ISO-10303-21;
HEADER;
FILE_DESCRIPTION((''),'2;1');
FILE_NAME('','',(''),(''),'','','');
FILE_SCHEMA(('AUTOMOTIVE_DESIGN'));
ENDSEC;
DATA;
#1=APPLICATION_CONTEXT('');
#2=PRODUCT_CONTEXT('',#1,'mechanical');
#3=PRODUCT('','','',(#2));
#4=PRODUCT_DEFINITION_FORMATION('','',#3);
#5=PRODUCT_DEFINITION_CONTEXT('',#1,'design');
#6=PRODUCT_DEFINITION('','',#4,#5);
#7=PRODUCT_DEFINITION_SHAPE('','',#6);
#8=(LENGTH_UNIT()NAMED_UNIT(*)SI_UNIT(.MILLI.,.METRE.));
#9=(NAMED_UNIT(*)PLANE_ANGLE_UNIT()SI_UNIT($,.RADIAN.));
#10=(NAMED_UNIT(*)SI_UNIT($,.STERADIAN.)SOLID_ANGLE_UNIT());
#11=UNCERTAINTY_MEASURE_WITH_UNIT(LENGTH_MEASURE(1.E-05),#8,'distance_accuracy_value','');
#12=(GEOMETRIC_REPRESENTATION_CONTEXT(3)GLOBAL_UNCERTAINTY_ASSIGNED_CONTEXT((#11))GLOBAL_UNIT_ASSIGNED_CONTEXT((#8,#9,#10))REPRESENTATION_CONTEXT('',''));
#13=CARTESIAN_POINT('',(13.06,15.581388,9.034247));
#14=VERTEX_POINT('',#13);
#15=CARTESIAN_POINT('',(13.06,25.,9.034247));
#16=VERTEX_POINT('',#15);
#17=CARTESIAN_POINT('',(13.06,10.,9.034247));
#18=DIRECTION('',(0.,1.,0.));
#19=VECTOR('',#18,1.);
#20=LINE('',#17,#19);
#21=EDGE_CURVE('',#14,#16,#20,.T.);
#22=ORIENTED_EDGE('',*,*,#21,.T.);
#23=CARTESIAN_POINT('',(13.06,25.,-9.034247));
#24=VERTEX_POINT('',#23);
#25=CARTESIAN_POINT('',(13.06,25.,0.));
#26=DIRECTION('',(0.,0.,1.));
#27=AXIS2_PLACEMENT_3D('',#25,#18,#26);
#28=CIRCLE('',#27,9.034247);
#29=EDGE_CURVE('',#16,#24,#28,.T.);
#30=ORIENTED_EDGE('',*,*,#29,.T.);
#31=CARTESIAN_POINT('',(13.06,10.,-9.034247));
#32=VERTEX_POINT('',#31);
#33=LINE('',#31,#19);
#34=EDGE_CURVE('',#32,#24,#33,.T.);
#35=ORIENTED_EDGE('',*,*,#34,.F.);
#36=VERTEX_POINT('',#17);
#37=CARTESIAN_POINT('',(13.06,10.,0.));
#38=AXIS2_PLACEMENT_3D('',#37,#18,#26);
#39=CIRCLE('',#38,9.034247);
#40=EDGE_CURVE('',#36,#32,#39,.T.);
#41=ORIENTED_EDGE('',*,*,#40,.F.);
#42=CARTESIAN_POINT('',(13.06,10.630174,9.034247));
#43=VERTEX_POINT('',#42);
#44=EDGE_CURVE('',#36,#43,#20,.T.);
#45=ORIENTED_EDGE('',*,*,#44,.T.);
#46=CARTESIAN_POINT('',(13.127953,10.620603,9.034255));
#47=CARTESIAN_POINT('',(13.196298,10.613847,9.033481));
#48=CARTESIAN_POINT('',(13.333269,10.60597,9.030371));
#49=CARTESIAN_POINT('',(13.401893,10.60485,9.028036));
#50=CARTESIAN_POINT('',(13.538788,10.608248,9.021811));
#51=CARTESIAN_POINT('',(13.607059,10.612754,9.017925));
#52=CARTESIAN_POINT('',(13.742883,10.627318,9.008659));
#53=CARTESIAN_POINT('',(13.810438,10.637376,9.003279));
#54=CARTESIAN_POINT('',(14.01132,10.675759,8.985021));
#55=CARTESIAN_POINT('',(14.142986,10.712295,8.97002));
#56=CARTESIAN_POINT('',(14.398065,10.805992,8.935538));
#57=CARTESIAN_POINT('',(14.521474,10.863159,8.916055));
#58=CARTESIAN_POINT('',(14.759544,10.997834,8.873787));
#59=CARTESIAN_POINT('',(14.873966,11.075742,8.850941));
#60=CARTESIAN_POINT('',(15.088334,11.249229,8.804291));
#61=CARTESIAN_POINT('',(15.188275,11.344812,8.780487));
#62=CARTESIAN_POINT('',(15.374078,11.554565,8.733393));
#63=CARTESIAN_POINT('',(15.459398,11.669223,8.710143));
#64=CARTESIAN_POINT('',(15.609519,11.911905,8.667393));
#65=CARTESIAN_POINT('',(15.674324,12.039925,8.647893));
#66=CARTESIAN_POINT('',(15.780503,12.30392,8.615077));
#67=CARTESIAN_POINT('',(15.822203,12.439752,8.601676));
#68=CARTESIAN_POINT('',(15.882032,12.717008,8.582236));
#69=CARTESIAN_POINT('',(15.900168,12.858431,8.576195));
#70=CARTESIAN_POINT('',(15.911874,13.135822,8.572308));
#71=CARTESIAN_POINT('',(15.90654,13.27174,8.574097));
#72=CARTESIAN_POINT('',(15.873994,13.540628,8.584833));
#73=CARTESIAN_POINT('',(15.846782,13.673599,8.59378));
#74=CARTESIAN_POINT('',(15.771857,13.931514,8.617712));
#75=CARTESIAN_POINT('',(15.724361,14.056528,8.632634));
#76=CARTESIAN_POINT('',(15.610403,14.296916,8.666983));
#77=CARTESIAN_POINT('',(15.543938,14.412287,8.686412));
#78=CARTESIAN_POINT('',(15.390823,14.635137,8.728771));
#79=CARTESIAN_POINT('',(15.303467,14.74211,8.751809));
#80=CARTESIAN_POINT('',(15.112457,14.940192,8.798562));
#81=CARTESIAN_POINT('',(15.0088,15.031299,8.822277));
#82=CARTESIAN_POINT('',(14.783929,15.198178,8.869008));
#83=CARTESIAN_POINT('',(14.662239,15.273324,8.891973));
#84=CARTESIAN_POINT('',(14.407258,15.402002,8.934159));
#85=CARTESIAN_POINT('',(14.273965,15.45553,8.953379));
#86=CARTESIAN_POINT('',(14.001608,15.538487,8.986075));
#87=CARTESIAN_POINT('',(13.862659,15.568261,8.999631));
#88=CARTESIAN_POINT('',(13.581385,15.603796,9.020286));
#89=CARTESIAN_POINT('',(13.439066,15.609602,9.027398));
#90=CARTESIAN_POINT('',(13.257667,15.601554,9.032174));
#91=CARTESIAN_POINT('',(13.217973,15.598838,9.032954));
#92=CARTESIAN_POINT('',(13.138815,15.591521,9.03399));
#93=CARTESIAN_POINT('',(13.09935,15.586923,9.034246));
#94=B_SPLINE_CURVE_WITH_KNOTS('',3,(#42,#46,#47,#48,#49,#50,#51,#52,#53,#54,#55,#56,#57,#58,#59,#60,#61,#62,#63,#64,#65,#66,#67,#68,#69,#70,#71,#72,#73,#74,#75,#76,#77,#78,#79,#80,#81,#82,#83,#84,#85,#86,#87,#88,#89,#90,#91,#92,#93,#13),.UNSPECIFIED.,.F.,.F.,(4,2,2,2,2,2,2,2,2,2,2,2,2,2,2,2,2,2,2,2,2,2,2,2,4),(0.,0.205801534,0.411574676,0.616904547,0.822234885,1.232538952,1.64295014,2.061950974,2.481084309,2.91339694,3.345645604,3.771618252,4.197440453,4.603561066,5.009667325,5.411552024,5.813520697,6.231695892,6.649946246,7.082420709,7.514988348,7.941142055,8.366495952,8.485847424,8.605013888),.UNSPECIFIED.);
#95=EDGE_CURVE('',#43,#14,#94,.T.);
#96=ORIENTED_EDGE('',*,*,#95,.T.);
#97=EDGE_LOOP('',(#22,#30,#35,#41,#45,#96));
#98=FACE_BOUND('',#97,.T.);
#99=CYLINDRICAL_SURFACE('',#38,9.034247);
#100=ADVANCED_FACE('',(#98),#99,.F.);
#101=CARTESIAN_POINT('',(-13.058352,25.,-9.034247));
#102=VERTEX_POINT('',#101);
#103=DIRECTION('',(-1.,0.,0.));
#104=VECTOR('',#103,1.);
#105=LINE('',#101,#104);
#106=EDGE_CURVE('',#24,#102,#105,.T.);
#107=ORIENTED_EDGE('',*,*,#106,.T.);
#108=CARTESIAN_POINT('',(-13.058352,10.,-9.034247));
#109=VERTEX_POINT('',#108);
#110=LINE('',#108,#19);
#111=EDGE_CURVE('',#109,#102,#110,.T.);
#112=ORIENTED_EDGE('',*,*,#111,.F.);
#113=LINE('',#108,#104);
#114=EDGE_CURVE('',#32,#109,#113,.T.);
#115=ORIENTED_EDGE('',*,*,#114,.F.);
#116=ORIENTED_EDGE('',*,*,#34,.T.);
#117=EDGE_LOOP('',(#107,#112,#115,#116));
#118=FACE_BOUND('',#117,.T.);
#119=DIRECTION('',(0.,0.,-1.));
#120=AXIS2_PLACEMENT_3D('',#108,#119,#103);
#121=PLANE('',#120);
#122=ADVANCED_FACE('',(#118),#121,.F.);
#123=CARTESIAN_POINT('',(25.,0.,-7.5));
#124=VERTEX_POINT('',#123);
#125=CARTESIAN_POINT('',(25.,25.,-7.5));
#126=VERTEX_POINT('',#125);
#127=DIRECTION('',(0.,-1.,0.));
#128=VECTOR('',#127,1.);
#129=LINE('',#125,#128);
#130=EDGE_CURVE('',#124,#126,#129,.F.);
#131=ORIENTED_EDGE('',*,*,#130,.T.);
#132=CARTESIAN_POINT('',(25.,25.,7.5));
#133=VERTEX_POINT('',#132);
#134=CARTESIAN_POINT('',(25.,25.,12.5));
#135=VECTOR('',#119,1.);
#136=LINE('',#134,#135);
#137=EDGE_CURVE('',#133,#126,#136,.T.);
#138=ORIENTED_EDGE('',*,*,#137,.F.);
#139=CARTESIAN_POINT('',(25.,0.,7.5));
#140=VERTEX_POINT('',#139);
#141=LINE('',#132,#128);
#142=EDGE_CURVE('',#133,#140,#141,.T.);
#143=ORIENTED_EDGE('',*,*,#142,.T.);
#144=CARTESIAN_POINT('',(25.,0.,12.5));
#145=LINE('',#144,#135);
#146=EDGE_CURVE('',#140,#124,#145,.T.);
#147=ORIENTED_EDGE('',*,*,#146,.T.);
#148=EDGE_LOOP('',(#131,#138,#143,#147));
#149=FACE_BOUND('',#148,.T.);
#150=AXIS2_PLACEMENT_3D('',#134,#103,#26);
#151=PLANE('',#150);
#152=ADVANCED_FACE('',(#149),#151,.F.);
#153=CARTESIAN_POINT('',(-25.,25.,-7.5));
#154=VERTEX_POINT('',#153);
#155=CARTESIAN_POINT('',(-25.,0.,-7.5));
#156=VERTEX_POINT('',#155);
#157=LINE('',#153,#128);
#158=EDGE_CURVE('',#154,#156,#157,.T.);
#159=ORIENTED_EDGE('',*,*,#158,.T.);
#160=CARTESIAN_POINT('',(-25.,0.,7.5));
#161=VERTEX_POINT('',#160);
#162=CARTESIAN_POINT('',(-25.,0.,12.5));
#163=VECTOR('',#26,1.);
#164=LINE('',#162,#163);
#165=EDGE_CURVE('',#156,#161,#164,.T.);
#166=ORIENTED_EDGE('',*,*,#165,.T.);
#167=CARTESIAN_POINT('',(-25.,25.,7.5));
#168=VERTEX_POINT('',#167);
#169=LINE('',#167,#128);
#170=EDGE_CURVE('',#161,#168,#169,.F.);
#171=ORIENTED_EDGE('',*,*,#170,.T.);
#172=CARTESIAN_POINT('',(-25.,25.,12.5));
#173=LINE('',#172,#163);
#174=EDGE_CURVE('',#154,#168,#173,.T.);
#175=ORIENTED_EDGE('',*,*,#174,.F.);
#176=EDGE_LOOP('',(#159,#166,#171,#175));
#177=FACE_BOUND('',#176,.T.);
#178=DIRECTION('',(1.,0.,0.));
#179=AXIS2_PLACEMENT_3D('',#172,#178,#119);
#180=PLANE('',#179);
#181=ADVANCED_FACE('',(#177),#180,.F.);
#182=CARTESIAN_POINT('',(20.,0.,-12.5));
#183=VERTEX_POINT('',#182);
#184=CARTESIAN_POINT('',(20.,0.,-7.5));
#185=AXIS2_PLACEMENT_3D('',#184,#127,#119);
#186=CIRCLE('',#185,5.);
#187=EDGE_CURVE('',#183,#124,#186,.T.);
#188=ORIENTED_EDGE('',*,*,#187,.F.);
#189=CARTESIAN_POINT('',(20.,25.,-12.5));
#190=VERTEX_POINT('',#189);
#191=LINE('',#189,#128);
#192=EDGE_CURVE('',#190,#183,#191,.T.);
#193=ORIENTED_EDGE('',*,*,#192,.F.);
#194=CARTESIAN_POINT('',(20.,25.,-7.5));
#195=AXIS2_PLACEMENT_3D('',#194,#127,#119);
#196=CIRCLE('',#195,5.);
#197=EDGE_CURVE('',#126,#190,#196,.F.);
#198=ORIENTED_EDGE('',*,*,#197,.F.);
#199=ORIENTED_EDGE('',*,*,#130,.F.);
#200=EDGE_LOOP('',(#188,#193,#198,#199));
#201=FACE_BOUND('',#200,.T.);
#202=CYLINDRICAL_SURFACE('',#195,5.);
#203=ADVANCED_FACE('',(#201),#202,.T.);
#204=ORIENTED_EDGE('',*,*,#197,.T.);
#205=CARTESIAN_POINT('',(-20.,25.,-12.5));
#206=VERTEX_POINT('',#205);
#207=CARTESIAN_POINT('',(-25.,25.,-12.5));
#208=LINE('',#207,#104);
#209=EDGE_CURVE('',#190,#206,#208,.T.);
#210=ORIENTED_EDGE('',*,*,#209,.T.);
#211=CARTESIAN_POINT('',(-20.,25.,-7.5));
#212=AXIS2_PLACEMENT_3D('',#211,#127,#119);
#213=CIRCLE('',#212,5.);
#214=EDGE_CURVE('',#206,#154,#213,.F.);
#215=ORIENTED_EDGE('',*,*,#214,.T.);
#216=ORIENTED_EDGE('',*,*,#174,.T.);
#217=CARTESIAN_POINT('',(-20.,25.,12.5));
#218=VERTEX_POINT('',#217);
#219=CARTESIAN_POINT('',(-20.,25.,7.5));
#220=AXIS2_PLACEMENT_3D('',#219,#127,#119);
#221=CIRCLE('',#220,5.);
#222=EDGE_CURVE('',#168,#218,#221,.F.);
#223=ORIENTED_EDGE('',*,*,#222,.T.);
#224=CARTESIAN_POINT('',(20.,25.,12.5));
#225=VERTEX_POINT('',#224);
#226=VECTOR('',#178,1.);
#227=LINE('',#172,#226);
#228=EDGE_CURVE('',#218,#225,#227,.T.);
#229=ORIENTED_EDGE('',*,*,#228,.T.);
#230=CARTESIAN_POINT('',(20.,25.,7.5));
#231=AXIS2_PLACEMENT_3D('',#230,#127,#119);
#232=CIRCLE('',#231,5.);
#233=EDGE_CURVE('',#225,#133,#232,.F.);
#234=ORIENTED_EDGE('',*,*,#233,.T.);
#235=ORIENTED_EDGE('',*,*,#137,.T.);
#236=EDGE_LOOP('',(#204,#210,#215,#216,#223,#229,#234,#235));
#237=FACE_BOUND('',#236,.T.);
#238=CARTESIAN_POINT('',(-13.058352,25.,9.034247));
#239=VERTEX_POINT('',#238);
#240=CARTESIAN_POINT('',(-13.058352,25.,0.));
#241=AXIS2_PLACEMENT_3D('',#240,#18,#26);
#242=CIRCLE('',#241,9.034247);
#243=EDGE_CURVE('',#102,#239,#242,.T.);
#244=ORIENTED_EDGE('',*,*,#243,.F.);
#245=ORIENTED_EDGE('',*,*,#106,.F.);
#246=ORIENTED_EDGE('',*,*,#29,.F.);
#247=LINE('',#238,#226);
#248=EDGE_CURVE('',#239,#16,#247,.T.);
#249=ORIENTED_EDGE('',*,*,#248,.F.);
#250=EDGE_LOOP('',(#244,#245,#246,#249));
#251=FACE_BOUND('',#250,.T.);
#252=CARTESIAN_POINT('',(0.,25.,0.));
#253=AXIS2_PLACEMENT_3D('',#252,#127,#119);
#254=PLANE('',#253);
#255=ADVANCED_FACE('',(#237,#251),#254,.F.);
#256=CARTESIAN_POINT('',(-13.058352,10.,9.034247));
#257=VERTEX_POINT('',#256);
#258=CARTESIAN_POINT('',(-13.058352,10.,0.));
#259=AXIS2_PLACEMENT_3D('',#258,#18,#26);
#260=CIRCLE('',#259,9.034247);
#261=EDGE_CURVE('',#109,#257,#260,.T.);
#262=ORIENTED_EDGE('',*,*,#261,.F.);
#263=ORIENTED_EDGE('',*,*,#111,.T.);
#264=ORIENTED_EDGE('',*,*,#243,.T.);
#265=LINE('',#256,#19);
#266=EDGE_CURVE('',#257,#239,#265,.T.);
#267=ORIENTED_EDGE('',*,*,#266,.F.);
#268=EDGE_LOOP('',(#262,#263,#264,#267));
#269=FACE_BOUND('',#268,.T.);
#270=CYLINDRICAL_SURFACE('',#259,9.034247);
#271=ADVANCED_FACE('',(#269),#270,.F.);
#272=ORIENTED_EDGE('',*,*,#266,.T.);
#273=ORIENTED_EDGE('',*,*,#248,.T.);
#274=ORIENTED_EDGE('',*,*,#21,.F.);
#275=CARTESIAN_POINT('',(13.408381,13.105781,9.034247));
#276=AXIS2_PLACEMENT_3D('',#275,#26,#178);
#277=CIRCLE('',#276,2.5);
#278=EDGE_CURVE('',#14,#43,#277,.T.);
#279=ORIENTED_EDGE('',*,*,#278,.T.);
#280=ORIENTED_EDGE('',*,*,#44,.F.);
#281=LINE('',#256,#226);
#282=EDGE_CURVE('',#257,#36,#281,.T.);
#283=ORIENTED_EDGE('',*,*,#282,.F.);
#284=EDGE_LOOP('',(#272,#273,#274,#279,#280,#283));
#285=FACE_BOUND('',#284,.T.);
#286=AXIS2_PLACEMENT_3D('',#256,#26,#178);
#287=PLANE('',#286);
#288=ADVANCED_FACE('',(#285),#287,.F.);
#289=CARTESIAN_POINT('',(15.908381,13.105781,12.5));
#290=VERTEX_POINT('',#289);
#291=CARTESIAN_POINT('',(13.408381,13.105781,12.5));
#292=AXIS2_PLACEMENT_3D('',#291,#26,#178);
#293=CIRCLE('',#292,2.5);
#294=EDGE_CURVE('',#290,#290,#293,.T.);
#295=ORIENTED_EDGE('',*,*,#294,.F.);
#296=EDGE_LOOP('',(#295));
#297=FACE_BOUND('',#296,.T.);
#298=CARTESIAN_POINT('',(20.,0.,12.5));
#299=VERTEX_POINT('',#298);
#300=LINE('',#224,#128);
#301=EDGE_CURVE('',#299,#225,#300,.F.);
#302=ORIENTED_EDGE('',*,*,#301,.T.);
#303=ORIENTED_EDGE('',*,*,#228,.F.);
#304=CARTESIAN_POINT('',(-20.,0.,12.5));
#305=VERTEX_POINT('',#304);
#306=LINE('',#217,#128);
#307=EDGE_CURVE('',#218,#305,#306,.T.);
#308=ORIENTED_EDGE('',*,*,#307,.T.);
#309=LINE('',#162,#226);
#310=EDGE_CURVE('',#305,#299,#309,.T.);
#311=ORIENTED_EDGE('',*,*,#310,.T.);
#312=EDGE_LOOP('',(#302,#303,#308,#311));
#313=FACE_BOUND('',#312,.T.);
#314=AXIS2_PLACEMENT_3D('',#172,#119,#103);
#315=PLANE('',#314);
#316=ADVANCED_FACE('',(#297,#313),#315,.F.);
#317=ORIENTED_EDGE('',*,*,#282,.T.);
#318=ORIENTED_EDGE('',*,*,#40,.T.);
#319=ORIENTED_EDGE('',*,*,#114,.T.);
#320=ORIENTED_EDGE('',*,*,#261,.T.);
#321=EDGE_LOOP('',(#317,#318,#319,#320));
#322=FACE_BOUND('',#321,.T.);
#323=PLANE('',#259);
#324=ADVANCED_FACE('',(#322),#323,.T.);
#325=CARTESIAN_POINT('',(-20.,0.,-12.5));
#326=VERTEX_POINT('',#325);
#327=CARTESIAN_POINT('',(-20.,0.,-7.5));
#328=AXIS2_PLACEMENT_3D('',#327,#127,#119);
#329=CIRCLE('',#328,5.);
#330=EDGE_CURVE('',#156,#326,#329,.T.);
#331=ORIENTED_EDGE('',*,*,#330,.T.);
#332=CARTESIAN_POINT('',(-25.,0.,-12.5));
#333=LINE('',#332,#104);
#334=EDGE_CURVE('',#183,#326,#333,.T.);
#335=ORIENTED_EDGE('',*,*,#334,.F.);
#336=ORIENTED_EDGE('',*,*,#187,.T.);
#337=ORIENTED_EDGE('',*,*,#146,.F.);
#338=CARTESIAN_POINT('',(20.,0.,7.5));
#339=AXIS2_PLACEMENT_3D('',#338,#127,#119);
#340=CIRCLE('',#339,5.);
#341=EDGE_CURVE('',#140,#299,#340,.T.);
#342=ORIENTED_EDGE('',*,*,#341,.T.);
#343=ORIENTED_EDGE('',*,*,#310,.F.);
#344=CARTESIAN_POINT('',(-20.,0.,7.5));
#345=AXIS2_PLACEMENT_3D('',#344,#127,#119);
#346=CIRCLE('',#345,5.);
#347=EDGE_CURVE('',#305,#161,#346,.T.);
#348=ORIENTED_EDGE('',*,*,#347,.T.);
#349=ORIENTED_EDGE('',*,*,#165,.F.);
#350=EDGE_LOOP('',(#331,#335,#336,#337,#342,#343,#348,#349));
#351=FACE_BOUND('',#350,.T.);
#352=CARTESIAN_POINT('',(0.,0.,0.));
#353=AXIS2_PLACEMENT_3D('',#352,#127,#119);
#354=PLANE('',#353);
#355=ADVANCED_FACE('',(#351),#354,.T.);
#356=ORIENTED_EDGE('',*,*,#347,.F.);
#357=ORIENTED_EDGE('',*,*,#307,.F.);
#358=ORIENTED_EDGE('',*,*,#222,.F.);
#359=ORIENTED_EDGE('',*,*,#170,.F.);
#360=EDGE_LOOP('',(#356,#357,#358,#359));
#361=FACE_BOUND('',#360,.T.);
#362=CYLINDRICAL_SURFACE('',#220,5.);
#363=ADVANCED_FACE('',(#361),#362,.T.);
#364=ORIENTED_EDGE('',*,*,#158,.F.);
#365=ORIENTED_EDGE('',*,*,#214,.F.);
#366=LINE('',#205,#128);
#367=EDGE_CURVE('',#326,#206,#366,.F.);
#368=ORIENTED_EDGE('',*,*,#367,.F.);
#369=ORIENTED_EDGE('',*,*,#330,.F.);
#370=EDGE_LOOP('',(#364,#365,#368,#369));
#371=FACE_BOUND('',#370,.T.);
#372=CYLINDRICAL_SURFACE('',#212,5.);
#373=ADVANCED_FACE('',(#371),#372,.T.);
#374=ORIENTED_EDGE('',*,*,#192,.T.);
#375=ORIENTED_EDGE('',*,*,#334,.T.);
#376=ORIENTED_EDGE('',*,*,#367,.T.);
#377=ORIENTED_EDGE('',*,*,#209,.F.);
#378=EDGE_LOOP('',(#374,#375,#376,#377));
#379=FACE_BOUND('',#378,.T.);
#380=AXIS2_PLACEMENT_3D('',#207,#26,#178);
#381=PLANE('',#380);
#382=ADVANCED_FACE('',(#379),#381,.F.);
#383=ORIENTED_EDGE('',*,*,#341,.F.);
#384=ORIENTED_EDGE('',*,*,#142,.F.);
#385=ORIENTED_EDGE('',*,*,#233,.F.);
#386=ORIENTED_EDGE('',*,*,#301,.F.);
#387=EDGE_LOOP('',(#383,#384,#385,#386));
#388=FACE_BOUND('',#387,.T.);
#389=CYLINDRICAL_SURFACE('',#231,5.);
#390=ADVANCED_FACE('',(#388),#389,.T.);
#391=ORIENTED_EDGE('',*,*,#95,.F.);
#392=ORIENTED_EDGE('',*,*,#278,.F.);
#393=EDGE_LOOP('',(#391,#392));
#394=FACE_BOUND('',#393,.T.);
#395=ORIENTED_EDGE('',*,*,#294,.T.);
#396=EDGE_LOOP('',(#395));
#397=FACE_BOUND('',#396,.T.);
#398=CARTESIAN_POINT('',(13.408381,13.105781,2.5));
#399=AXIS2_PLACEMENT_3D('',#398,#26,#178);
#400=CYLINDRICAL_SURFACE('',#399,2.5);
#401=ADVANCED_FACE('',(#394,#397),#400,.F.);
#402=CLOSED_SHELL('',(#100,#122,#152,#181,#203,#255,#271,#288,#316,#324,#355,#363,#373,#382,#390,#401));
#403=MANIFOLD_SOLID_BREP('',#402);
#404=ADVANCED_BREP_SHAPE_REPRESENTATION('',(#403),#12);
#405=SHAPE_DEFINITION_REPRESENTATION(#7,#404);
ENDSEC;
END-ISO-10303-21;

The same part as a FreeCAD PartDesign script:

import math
import FreeCAD as App
import Part
import Sketcher
from FreeCAD import Vector
Q = App.Units.Quantity


def edges_at(feature, points):
    """Names of the edges that pass closest to the given points."""
    edges = feature.Shape.Edges
    near = lambda p: min(range(len(edges)), key=lambda i: edges[i].distToShape(Part.Vertex(*p))[0])
    return sorted({f"Edge{near(p) + 1}" for p in points})


def add_polygon(sketch, points):
    """Adds a closed chain of lines whose ends are joined by coincident constraints."""
    first, n = sketch.GeometryCount, len(points)
    for a, b in zip(points, points[1:] + points[:1]):
        sketch.addGeometry(Part.LineSegment(App.Vector(*a, 0), App.Vector(*b, 0)), False)
    for i in range(n):
        sketch.addConstraint(Sketcher.Constraint("Coincident", first + i, 2, first + (i + 1) % n, 1))

doc = App.newDocument("Part")
body = doc.addObject("PartDesign::Body", "Body")

sketch1 = body.newObject("Sketcher::SketchObject", "Sketch")
sketch1.AttachmentSupport = (doc.getObject("XZ_Plane"), [""])
sketch1.MapMode = "FlatFace"
add_polygon(sketch1, [(-25, -12.5), (-25, 12.5), (25, 12.5), (25, -12.5)])
sketch1.addConstraint(Sketcher.Constraint("Vertical", 0))
sketch1.addConstraint(Sketcher.Constraint("Horizontal", 1))
sketch1.addConstraint(Sketcher.Constraint("Vertical", 2))
sketch1.addConstraint(Sketcher.Constraint("Horizontal", 3))
sketch1.addConstraint(Sketcher.Constraint("Symmetric", 0, 2, 2, 2, -1, 1))
sketch1.addConstraint(Sketcher.Constraint("DistanceX", 1, 1, 1, 2, Q("50 mm")))
sketch1.addConstraint(Sketcher.Constraint("DistanceY", 0, 1, 0, 2, Q("25 mm")))
pad1 = body.newObject("PartDesign::Pad", "Pad")
pad1.Profile = sketch1
pad1.Length = 25
pad1.Reversed = True
doc.recompute()

fillet = body.newObject("PartDesign::Fillet", "Fillet")
fillet.Base = (pad1, edges_at(pad1, [
    (25, 12.5, 12.5),
    (-25, 12.5, 12.5),
    (-25, 12.5, -12.5),
    (25, 12.5, -12.5),
]))
fillet.Radius = 5

sketch2 = body.newObject("Sketcher::SketchObject", "Sketch001")
sketch2.AttachmentSupport = (doc.getObject("XZ_Plane"), [""])
sketch2.MapMode = "FlatFace"
sketch2.AttachmentOffset = App.Placement(Vector(0, 0, -25), App.Rotation())
sketch2.addGeometry(Part.LineSegment(Vector(13.06, -9.034247, 0), Vector(-13.058352, -9.034247, 0)), False)
sketch2.addGeometry(Part.ArcOfCircle(Part.Circle(Vector(-13.058352, 0, 0), Vector(0, 0, 1), 9.034247), math.radians(90), math.radians(270)), False)
sketch2.addGeometry(Part.LineSegment(Vector(-13.058352, 9.034247, 0), Vector(13.06, 9.034247, 0)), False)
sketch2.addGeometry(Part.ArcOfCircle(Part.Circle(Vector(13.06, 0, 0), Vector(0, 0, 1), 9.034247), math.radians(-90), math.radians(90)), False)
sketch2.addConstraint(Sketcher.Constraint("Tangent", 0, 2, 1, 2))
sketch2.addConstraint(Sketcher.Constraint("Tangent", 1, 1, 2, 1))
sketch2.addConstraint(Sketcher.Constraint("Tangent", 2, 2, 3, 2))
sketch2.addConstraint(Sketcher.Constraint("Tangent", 3, 1, 0, 1))
sketch2.addConstraint(Sketcher.Constraint("Horizontal", 0))
sketch2.addConstraint(Sketcher.Constraint("Horizontal", 2))
sketch2.addConstraint(Sketcher.Constraint("PointOnObject", 1, 3, -1))
sketch2.addConstraint(Sketcher.Constraint("DistanceX", -1, 1, 3, 3, Q("13.06 mm")))
sketch2.addConstraint(Sketcher.Constraint("Radius", 1, Q("9.034247 mm")))
sketch2.addConstraint(Sketcher.Constraint("DistanceX", 0, 2, 0, 1, Q("26.118352 mm")))
pocket1 = body.newObject("PartDesign::Pocket", "Pocket")
pocket1.Profile = sketch2
pocket1.Length = 15
pocket1.Reversed = True

sketch3 = body.newObject("Sketcher::SketchObject", "Sketch002")
sketch3.AttachmentSupport = (doc.getObject("XY_Plane"), [""])
sketch3.MapMode = "FlatFace"
sketch3.AttachmentOffset = App.Placement(Vector(0, 0, 12.5), App.Rotation())
sketch3.addGeometry(Part.Circle(Vector(13.408381, 13.105781, 0), Vector(0, 0, 1), 2.5), False)
sketch3.addConstraint(Sketcher.Constraint("Diameter", 0, Q("5 mm")))
sketch3.addConstraint(Sketcher.Constraint("DistanceX", -1, 1, 0, 3, Q("13.408381 mm")))
sketch3.addConstraint(Sketcher.Constraint("DistanceY", -1, 1, 0, 3, Q("13.105781 mm")))
pocket2 = body.newObject("PartDesign::Pocket", "Pocket001")
pocket2.Profile = sketch3
pocket2.Length = 10

doc.recompute()
